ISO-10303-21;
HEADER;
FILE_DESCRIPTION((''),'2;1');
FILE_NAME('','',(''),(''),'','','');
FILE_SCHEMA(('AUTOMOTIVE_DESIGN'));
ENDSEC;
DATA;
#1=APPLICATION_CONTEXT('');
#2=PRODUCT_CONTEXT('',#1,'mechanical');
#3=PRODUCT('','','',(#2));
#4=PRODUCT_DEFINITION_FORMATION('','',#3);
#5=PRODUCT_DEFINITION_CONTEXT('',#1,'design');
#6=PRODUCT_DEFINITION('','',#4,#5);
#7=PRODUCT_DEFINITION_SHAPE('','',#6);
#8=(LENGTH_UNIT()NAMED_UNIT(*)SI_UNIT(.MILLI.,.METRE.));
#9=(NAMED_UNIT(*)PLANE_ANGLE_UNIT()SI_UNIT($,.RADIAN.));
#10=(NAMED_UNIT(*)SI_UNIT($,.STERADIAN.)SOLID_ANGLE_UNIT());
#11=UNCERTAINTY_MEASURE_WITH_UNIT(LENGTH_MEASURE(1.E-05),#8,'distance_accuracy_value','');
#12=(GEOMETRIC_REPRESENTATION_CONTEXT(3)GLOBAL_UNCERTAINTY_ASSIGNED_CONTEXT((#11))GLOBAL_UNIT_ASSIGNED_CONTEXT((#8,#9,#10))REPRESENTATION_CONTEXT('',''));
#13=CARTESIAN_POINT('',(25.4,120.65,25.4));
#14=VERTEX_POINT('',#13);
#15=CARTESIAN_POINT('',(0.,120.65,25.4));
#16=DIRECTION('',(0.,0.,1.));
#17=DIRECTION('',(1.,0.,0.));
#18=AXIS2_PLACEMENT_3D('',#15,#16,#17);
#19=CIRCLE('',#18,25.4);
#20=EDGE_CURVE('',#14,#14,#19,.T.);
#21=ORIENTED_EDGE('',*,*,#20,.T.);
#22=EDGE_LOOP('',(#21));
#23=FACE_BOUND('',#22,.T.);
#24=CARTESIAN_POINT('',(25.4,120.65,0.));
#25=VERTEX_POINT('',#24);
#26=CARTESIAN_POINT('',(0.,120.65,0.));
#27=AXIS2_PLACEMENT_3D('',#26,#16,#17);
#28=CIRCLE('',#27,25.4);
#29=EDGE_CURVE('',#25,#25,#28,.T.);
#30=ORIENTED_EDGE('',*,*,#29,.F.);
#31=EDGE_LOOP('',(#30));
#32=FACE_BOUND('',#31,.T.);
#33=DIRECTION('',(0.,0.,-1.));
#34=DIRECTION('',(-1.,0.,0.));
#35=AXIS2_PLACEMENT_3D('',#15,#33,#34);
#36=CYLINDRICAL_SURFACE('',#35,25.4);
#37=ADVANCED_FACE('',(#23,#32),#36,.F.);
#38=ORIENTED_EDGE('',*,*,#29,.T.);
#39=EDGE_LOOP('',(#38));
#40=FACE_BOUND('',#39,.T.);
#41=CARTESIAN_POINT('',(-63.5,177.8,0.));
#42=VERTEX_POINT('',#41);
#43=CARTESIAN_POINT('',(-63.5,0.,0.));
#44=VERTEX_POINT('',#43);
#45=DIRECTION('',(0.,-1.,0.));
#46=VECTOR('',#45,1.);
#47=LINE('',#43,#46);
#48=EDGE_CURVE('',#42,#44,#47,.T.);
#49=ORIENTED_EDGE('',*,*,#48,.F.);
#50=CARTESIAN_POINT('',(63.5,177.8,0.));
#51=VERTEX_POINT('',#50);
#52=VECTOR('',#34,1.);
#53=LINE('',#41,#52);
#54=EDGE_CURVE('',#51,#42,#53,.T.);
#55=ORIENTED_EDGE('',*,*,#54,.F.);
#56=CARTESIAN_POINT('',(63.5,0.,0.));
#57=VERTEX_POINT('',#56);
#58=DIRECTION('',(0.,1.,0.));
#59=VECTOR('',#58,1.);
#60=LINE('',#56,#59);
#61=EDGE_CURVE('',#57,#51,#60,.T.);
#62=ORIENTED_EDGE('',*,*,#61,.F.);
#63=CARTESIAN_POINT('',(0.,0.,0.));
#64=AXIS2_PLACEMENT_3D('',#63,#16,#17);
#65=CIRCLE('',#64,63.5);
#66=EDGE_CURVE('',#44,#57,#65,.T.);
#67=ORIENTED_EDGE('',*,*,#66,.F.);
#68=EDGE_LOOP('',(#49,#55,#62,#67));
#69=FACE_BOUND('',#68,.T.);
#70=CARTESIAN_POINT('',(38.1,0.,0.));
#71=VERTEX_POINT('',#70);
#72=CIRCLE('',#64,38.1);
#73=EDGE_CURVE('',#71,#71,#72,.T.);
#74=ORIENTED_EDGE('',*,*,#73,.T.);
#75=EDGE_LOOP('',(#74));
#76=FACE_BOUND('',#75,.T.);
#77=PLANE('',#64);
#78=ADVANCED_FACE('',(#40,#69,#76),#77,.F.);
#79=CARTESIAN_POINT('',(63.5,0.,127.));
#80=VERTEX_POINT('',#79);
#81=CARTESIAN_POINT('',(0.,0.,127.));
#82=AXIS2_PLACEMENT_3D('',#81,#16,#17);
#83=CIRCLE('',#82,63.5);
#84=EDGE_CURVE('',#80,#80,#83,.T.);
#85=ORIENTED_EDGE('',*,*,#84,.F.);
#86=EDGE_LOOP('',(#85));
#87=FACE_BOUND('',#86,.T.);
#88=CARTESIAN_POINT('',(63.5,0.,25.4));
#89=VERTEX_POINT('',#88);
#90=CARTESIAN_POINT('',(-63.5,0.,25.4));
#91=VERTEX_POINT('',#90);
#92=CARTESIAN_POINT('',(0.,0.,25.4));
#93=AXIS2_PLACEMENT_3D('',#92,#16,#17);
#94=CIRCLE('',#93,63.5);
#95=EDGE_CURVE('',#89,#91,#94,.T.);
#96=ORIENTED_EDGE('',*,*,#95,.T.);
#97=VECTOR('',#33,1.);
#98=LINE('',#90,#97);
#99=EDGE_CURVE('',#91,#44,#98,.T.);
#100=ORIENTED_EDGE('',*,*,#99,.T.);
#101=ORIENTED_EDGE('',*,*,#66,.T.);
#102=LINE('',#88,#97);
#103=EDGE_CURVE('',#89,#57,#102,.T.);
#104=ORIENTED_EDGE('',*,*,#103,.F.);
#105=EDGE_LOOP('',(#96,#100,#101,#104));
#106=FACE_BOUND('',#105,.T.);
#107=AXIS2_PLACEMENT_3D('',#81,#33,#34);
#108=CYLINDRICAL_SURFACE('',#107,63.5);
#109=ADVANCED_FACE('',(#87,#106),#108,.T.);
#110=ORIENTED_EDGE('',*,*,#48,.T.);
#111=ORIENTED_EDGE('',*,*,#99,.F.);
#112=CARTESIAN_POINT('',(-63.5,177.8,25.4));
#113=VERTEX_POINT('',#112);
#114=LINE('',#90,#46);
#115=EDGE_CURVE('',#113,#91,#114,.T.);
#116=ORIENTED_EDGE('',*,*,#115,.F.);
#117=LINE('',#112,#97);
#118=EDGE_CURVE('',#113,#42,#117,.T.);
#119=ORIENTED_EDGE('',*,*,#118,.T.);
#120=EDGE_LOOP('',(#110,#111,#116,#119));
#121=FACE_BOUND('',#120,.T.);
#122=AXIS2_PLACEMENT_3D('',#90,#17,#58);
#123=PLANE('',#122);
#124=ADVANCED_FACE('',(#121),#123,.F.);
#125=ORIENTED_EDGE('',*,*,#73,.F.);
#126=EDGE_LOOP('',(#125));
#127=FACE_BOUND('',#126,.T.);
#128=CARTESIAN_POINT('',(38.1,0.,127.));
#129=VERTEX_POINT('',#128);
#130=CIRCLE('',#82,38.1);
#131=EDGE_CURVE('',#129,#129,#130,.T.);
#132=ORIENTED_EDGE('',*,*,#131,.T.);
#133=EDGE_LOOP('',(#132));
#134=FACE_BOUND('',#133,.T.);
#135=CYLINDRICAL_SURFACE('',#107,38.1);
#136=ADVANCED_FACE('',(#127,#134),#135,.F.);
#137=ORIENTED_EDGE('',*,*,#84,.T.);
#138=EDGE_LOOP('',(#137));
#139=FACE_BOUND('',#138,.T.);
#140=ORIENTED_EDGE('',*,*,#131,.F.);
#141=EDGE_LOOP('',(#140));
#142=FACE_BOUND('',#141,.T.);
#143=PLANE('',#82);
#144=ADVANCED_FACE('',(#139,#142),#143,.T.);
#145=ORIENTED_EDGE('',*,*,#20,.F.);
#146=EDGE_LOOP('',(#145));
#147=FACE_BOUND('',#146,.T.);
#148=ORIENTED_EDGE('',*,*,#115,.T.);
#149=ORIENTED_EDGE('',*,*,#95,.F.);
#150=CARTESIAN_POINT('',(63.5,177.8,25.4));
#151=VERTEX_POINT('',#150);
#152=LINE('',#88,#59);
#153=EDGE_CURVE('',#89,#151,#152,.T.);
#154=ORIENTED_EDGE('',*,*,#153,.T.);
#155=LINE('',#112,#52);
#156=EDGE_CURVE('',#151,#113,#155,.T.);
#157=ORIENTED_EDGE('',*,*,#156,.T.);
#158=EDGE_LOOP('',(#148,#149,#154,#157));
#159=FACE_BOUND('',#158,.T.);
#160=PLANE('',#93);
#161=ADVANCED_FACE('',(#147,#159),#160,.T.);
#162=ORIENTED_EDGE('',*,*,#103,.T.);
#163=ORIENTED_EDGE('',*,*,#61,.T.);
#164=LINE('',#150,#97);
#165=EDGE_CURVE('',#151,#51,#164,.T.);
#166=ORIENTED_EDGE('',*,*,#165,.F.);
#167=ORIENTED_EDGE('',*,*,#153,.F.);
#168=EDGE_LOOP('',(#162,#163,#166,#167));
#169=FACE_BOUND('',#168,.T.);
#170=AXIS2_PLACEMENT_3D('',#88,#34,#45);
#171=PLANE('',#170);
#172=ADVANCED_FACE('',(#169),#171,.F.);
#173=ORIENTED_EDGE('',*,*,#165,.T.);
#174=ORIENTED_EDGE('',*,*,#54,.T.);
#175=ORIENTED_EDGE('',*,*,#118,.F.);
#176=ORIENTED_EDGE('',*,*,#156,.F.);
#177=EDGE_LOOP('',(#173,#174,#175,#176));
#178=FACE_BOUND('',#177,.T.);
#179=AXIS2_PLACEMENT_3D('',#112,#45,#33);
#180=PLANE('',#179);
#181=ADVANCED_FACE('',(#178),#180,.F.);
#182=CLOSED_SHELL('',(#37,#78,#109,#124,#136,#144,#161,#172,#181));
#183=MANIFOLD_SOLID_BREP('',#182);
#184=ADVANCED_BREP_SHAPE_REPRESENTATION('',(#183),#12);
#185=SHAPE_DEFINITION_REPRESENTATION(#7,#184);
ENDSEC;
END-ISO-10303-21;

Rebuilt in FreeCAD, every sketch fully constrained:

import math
import FreeCAD as App
import Part
import Sketcher
Q = App.Units.Quantity

doc = App.newDocument("Part")
body = doc.addObject("PartDesign::Body", "Body")

# Sketch on XY plane
sketch1 = doc.addObject("Sketcher::SketchObject", "Sketch")
body.addObject(sketch1)
sketch1.AttachmentSupport = (doc.XY_Plane, [""])
sketch1.MapMode = "FlatFace"
sketch1.addGeometry([
    Part.Circle(App.Vector(0, 0, 0), App.Vector(0, 0, 1), 63.5),
    Part.Circle(App.Vector(0, 0, 0), App.Vector(0, 0, 1), 38.1),
], False)
sketch1.addConstraint([
    Sketcher.Constraint("Coincident", 0, 3, -1, 1),
    Sketcher.Constraint("Coincident", 1, 3, -1, 1),
    Sketcher.Constraint("Diameter", 0, Q("5 in")),
    Sketcher.Constraint("Diameter", 1, Q("3 in")),
])
pad1 = doc.addObject("PartDesign::Pad", "Pad")
body.addObject(pad1)
pad1.Profile = sketch1
pad1.Length = Q("5 in")

# Sketch on XY plane
sketch2 = doc.addObject("Sketcher::SketchObject", "Sketch001")
body.addObject(sketch2)
sketch2.AttachmentSupport = (doc.XY_Plane, [""])
sketch2.MapMode = "FlatFace"
sketch2.addGeometry([
    Part.LineSegment(App.Vector(-63.5, 177.8, 0), App.Vector(-63.5, 0, 0)),  # 0
    Part.ArcOfCircle(Part.Circle(App.Vector(0, 0, 0), App.Vector(0, 0, 1), 63.5), math.radians(180), math.radians(360)),  # 1
    Part.LineSegment(App.Vector(63.5, 0, 0), App.Vector(63.5, 177.8, 0)),  # 2
    Part.LineSegment(App.Vector(63.5, 177.8, 0), App.Vector(-63.5, 177.8, 0)),  # 3
    Part.Circle(App.Vector(0, 120.65, 0), App.Vector(0, 0, 1), 25.4),  # 4
    Part.Circle(App.Vector(0, 0, 0), App.Vector(0, 0, 1), 38.1),  # 5
], False)
sketch2.addConstraint([
    Sketcher.Constraint("Tangent", 0, 2, 1, 1),
    Sketcher.Constraint("Tangent", 1, 2, 2, 1),
    Sketcher.Constraint("Coincident", 2, 2, 3, 1),
    Sketcher.Constraint("Coincident", 3, 2, 0, 1),
    Sketcher.Constraint("Vertical", 0),
    Sketcher.Constraint("Vertical", 2),
    Sketcher.Constraint("Horizontal", 3),
    Sketcher.Constraint("Coincident", 1, 3, -1, 1),
    Sketcher.Constraint("Coincident", 5, 3, -1, 1),
    Sketcher.Constraint("PointOnObject", 4, 3, -2),
    Sketcher.Constraint("Diameter", 4, Q("2 in")),
    Sketcher.Constraint("Diameter", 5, Q("3 in")),
    Sketcher.Constraint("Radius", 1, Q("2.5 in")),
    Sketcher.Constraint("DistanceY", 0, 2, 0, 1, Q("7 in")),
    Sketcher.Constraint("DistanceY", -1, 1, 4, 3, Q("4.75 in")),
])
pad2 = doc.addObject("PartDesign::Pad", "Pad001")
body.addObject(pad2)
pad2.Profile = sketch2
pad2.Length = Q("1 in")

doc.recompute()
